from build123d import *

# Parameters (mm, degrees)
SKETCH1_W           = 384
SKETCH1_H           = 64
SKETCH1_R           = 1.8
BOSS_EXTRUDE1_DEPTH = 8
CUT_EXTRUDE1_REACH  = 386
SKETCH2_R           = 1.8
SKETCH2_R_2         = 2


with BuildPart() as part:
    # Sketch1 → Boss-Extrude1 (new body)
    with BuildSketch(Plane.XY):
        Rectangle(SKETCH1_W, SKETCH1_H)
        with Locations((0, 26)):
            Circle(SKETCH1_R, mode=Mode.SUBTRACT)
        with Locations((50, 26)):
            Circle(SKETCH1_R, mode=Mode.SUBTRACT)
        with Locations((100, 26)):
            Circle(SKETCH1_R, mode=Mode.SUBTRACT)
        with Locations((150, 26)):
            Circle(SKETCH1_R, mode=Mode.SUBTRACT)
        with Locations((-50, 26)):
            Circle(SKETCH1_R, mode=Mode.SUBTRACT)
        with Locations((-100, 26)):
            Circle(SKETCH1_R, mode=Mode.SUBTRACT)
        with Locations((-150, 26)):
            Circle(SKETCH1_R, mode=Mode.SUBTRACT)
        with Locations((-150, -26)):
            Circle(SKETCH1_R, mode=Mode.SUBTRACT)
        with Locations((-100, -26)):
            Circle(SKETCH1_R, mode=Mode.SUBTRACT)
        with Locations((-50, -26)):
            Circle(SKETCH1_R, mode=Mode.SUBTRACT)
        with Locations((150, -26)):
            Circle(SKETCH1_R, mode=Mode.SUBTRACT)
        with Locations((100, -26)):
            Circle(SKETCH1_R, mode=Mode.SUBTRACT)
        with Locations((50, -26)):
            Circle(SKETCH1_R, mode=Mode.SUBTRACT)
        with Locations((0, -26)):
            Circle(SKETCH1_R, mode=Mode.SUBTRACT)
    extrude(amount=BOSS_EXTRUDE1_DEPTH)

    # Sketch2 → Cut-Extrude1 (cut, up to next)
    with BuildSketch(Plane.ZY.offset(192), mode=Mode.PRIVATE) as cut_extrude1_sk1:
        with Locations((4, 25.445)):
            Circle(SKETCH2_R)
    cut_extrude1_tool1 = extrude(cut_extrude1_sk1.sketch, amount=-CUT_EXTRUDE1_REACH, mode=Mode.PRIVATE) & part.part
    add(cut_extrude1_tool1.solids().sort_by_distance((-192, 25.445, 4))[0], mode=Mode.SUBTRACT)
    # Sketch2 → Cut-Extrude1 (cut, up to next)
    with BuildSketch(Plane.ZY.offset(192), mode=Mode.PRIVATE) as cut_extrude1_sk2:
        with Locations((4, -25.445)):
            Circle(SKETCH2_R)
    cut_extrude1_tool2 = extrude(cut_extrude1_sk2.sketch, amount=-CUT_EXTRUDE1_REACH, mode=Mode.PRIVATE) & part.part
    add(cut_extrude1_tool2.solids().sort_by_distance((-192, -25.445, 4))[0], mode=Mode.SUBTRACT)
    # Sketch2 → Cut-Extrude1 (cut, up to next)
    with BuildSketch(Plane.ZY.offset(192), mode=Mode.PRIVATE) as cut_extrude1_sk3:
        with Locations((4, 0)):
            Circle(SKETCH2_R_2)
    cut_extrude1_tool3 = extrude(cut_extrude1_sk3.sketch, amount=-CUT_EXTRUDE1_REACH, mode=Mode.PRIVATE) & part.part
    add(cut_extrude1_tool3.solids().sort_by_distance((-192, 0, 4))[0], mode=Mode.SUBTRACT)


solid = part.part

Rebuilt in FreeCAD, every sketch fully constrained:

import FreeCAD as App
import Part
import Sketcher
Q = App.Units.Quantity


def add_polygon(sketch, points):
    """Adds a closed chain of lines whose ends are joined by coincident constraints."""
    first, n = sketch.GeometryCount, len(points)
    for a, b in zip(points, points[1:] + points[:1]):
        sketch.addGeometry(Part.LineSegment(App.Vector(*a, 0), App.Vector(*b, 0)), False)
    for i in range(n):
        sketch.addConstraint(Sketcher.Constraint("Coincident", first + i, 2, first + (i + 1) % n, 1))

doc = App.newDocument("Part")
params = doc.addObject("Spreadsheet::Sheet", "Params")
for row, (alias, value) in enumerate([
    ("sketch1_diameter", "3.6 mm"),
    ("sketch1_width", "384 mm"),
    ("sketch1_height", "64 mm"),
    ("pad1_length", "8 mm"),
    ("sketch2_diameter", "3.6 mm"),
    ("pocket1_length", "384 mm"),
    ("sketch3_diameter", "3.6 mm"),
    ("pocket2_length", "384 mm"),
    ("sketch4_diameter", "4 mm"),
], start=1):
    params.set(f"A{row}", alias)
    params.set(f"B{row}", "=" + value)
    params.setAlias(f"B{row}", alias)

body = doc.addObject("PartDesign::Body", "Body")

sketch1 = body.newObject("Sketcher::SketchObject", "Sketch")
sketch1.AttachmentSupport = (doc.getObject("XY_Plane"), [""])
sketch1.MapMode = "FlatFace"
add_polygon(sketch1, [(-192, 32), (-192, -32), (192, -32), (192, 32)])
sketch1.addGeometry(Part.Circle(App.Vector(-150, -26, 0), App.Vector(0, 0, 1), 1.8), False)
sketch1.addGeometry(Part.Circle(App.Vector(-100, -26, 0), App.Vector(0, 0, 1), 1.8), False)
sketch1.addGeometry(Part.Circle(App.Vector(-50, -26, 0), App.Vector(0, 0, 1), 1.8), False)
sketch1.addGeometry(Part.Circle(App.Vector(0, -26, 0), App.Vector(0, 0, 1), 1.8), False)
sketch1.addGeometry(Part.Circle(App.Vector(50, -26, 0), App.Vector(0, 0, 1), 1.8), False)
sketch1.addGeometry(Part.Circle(App.Vector(100, -26, 0), App.Vector(0, 0, 1), 1.8), False)
sketch1.addGeometry(Part.Circle(App.Vector(150, -26, 0), App.Vector(0, 0, 1), 1.8), False)
sketch1.addGeometry(Part.Circle(App.Vector(-150, 26, 0), App.Vector(0, 0, 1), 1.8), False)
sketch1.addGeometry(Part.Circle(App.Vector(-100, 26, 0), App.Vector(0, 0, 1), 1.8), False)
sketch1.addGeometry(Part.Circle(App.Vector(-50, 26, 0), App.Vector(0, 0, 1), 1.8), False)
sketch1.addGeometry(Part.Circle(App.Vector(0, 26, 0), App.Vector(0, 0, 1), 1.8), False)
sketch1.addGeometry(Part.Circle(App.Vector(50, 26, 0), App.Vector(0, 0, 1), 1.8), False)
sketch1.addGeometry(Part.Circle(App.Vector(100, 26, 0), App.Vector(0, 0, 1), 1.8), False)
sketch1.addGeometry(Part.Circle(App.Vector(150, 26, 0), App.Vector(0, 0, 1), 1.8), False)
sketch1.addConstraint([
    Sketcher.Constraint("Vertical", 0),
    Sketcher.Constraint("Horizontal", 1),
    Sketcher.Constraint("Vertical", 2),
    Sketcher.Constraint("Horizontal", 3),
    Sketcher.Constraint("Equal", 4, 5),
    Sketcher.Constraint("Equal", 5, 6),
    Sketcher.Constraint("Equal", 6, 7),
    Sketcher.Constraint("Equal", 7, 8),
    Sketcher.Constraint("Equal", 8, 9),
    Sketcher.Constraint("Equal", 9, 10),
    Sketcher.Constraint("Equal", 10, 11),
    Sketcher.Constraint("Equal", 11, 12),
    Sketcher.Constraint("Equal", 12, 13),
    Sketcher.Constraint("Equal", 13, 14),
    Sketcher.Constraint("Equal", 14, 15),
    Sketcher.Constraint("Equal", 15, 16),
    Sketcher.Constraint("Equal", 16, 17),
    Sketcher.Constraint("Symmetric", 10, 3, 11, 3, -1, 1),
    Sketcher.Constraint("Symmetric", 9, 3, 12, 3, -1, 1),
    Sketcher.Constraint("Symmetric", 8, 3, 13, 3, -1, 1),
    Sketcher.Constraint("Symmetric", 7, 3, 14, 3, -1, 1),
    Sketcher.Constraint("Symmetric", 6, 3, 15, 3, -1, 1),
    Sketcher.Constraint("Symmetric", 5, 3, 16, 3, -1, 1),
    Sketcher.Constraint("Symmetric", 4, 3, 17, 3, -1, 1),
    Sketcher.Constraint("Symmetric", 0, 2, 2, 2, -1, 1),
    Sketcher.Constraint("Symmetric", 6, 3, 8, 3, -2),
    Sketcher.Constraint("Symmetric", 5, 3, 9, 3, -2),
    Sketcher.Constraint("Symmetric", 4, 3, 10, 3, -2),
    Sketcher.Constraint("PointOnObject", 7, 3, -2),
    Sketcher.Constraint("Horizontal", 4, 3, 5, 3),
    Sketcher.Constraint("Horizontal", 5, 3, 6, 3),
    Sketcher.Constraint("Horizontal", 6, 3, 7, 3),
    Sketcher.Constraint("Diameter", 4, Q("3.6 mm")),
    Sketcher.Constraint("DistanceX", 1, 1, 1, 2, Q("384 mm")),
    Sketcher.Constraint("DistanceY", 0, 2, 0, 1, Q("64 mm")),
    Sketcher.Constraint("DistanceX", 4, 3, -1, 1, Q("150 mm")),
    Sketcher.Constraint("DistanceY", 4, 3, -1, 1, Q("26 mm")),
    Sketcher.Constraint("DistanceX", 5, 3, -1, 1, Q("100 mm")),
    Sketcher.Constraint("DistanceX", 6, 3, -1, 1, Q("50 mm")),
])
sketch1.setExpression("Constraints[36]", "Params.sketch1_diameter")
sketch1.setExpression("Constraints[37]", "Params.sketch1_width")
sketch1.setExpression("Constraints[38]", "Params.sketch1_height")
pad1 = body.newObject("PartDesign::Pad", "Pad")
pad1.Profile = sketch1
pad1.setExpression("Length", "Params.pad1_length")

sketch2 = body.newObject("Sketcher::SketchObject", "Sketch001")
sketch2.AttachmentSupport = (doc.getObject("YZ_Plane"), [""])
sketch2.MapMode = "FlatFace"
sketch2.AttachmentOffset = App.Placement(App.Vector(0, 0, -192), App.Rotation())
sketch2.addGeometry(Part.Circle(App.Vector(25.4, 4, 0), App.Vector(0, 0, 1), 1.8), False)
sketch2.addConstraint([
    Sketcher.Constraint("Diameter", 0, Q("3.6 mm")),
    Sketcher.Constraint("DistanceY", -1, 1, 0, 3, Q("4 mm")),
    Sketcher.Constraint("DistanceX", -1, 1, 0, 3, Q("25.445 mm")),
])
sketch2.setExpression("Constraints[0]", "Params.sketch2_diameter")
pocket1 = body.newObject("PartDesign::Pocket", "Pocket")
pocket1.Profile = sketch2
pocket1.setExpression("Length", "Params.pocket1_length")
pocket1.Reversed = True

sketch3 = body.newObject("Sketcher::SketchObject", "Sketch002")
sketch3.AttachmentSupport = (doc.getObject("YZ_Plane"), [""])
sketch3.MapMode = "FlatFace"
sketch3.AttachmentOffset = App.Placement(App.Vector(0, 0, -192), App.Rotation())
sketch3.addGeometry(Part.Circle(App.Vector(-25.4, 4, 0), App.Vector(0, 0, 1), 1.8), False)
sketch3.addConstraint([
    Sketcher.Constraint("Diameter", 0, Q("3.6 mm")),
    Sketcher.Constraint("DistanceY", -1, 1, 0, 3, Q("4 mm")),
    Sketcher.Constraint("DistanceX", 0, 3, -1, 1, Q("25.445 mm")),
])
sketch3.setExpression("Constraints[0]", "Params.sketch3_diameter")
pocket2 = body.newObject("PartDesign::Pocket", "Pocket001")
pocket2.Profile = sketch3
pocket2.setExpression("Length", "Params.pocket2_length")
pocket2.Reversed = True

sketch4 = body.newObject("Sketcher::SketchObject", "Sketch003")
sketch4.AttachmentSupport = (doc.getObject("YZ_Plane"), [""])
sketch4.MapMode = "FlatFace"
sketch4.AttachmentOffset = App.Placement(App.Vector(0, 0, -192), App.Rotation())
sketch4.addGeometry(Part.Circle(App.Vector(0, 4, 0), App.Vector(0, 0, 1), 2), False)
sketch4.addConstraint([
    Sketcher.Constraint("PointOnObject", 0, 3, -2),
    Sketcher.Constraint("Diameter", 0, Q("4 mm")),
    Sketcher.Constraint("DistanceY", -1, 1, 0, 3, Q("4 mm")),
])
sketch4.setExpression("Constraints[1]", "Params.sketch4_diameter")
pocket3 = body.newObject("PartDesign::Pocket", "Pocket002")
pocket3.Profile = sketch4
pocket3.Type = "UpToFirst"
pocket3.Reversed = True

doc.recompute()
